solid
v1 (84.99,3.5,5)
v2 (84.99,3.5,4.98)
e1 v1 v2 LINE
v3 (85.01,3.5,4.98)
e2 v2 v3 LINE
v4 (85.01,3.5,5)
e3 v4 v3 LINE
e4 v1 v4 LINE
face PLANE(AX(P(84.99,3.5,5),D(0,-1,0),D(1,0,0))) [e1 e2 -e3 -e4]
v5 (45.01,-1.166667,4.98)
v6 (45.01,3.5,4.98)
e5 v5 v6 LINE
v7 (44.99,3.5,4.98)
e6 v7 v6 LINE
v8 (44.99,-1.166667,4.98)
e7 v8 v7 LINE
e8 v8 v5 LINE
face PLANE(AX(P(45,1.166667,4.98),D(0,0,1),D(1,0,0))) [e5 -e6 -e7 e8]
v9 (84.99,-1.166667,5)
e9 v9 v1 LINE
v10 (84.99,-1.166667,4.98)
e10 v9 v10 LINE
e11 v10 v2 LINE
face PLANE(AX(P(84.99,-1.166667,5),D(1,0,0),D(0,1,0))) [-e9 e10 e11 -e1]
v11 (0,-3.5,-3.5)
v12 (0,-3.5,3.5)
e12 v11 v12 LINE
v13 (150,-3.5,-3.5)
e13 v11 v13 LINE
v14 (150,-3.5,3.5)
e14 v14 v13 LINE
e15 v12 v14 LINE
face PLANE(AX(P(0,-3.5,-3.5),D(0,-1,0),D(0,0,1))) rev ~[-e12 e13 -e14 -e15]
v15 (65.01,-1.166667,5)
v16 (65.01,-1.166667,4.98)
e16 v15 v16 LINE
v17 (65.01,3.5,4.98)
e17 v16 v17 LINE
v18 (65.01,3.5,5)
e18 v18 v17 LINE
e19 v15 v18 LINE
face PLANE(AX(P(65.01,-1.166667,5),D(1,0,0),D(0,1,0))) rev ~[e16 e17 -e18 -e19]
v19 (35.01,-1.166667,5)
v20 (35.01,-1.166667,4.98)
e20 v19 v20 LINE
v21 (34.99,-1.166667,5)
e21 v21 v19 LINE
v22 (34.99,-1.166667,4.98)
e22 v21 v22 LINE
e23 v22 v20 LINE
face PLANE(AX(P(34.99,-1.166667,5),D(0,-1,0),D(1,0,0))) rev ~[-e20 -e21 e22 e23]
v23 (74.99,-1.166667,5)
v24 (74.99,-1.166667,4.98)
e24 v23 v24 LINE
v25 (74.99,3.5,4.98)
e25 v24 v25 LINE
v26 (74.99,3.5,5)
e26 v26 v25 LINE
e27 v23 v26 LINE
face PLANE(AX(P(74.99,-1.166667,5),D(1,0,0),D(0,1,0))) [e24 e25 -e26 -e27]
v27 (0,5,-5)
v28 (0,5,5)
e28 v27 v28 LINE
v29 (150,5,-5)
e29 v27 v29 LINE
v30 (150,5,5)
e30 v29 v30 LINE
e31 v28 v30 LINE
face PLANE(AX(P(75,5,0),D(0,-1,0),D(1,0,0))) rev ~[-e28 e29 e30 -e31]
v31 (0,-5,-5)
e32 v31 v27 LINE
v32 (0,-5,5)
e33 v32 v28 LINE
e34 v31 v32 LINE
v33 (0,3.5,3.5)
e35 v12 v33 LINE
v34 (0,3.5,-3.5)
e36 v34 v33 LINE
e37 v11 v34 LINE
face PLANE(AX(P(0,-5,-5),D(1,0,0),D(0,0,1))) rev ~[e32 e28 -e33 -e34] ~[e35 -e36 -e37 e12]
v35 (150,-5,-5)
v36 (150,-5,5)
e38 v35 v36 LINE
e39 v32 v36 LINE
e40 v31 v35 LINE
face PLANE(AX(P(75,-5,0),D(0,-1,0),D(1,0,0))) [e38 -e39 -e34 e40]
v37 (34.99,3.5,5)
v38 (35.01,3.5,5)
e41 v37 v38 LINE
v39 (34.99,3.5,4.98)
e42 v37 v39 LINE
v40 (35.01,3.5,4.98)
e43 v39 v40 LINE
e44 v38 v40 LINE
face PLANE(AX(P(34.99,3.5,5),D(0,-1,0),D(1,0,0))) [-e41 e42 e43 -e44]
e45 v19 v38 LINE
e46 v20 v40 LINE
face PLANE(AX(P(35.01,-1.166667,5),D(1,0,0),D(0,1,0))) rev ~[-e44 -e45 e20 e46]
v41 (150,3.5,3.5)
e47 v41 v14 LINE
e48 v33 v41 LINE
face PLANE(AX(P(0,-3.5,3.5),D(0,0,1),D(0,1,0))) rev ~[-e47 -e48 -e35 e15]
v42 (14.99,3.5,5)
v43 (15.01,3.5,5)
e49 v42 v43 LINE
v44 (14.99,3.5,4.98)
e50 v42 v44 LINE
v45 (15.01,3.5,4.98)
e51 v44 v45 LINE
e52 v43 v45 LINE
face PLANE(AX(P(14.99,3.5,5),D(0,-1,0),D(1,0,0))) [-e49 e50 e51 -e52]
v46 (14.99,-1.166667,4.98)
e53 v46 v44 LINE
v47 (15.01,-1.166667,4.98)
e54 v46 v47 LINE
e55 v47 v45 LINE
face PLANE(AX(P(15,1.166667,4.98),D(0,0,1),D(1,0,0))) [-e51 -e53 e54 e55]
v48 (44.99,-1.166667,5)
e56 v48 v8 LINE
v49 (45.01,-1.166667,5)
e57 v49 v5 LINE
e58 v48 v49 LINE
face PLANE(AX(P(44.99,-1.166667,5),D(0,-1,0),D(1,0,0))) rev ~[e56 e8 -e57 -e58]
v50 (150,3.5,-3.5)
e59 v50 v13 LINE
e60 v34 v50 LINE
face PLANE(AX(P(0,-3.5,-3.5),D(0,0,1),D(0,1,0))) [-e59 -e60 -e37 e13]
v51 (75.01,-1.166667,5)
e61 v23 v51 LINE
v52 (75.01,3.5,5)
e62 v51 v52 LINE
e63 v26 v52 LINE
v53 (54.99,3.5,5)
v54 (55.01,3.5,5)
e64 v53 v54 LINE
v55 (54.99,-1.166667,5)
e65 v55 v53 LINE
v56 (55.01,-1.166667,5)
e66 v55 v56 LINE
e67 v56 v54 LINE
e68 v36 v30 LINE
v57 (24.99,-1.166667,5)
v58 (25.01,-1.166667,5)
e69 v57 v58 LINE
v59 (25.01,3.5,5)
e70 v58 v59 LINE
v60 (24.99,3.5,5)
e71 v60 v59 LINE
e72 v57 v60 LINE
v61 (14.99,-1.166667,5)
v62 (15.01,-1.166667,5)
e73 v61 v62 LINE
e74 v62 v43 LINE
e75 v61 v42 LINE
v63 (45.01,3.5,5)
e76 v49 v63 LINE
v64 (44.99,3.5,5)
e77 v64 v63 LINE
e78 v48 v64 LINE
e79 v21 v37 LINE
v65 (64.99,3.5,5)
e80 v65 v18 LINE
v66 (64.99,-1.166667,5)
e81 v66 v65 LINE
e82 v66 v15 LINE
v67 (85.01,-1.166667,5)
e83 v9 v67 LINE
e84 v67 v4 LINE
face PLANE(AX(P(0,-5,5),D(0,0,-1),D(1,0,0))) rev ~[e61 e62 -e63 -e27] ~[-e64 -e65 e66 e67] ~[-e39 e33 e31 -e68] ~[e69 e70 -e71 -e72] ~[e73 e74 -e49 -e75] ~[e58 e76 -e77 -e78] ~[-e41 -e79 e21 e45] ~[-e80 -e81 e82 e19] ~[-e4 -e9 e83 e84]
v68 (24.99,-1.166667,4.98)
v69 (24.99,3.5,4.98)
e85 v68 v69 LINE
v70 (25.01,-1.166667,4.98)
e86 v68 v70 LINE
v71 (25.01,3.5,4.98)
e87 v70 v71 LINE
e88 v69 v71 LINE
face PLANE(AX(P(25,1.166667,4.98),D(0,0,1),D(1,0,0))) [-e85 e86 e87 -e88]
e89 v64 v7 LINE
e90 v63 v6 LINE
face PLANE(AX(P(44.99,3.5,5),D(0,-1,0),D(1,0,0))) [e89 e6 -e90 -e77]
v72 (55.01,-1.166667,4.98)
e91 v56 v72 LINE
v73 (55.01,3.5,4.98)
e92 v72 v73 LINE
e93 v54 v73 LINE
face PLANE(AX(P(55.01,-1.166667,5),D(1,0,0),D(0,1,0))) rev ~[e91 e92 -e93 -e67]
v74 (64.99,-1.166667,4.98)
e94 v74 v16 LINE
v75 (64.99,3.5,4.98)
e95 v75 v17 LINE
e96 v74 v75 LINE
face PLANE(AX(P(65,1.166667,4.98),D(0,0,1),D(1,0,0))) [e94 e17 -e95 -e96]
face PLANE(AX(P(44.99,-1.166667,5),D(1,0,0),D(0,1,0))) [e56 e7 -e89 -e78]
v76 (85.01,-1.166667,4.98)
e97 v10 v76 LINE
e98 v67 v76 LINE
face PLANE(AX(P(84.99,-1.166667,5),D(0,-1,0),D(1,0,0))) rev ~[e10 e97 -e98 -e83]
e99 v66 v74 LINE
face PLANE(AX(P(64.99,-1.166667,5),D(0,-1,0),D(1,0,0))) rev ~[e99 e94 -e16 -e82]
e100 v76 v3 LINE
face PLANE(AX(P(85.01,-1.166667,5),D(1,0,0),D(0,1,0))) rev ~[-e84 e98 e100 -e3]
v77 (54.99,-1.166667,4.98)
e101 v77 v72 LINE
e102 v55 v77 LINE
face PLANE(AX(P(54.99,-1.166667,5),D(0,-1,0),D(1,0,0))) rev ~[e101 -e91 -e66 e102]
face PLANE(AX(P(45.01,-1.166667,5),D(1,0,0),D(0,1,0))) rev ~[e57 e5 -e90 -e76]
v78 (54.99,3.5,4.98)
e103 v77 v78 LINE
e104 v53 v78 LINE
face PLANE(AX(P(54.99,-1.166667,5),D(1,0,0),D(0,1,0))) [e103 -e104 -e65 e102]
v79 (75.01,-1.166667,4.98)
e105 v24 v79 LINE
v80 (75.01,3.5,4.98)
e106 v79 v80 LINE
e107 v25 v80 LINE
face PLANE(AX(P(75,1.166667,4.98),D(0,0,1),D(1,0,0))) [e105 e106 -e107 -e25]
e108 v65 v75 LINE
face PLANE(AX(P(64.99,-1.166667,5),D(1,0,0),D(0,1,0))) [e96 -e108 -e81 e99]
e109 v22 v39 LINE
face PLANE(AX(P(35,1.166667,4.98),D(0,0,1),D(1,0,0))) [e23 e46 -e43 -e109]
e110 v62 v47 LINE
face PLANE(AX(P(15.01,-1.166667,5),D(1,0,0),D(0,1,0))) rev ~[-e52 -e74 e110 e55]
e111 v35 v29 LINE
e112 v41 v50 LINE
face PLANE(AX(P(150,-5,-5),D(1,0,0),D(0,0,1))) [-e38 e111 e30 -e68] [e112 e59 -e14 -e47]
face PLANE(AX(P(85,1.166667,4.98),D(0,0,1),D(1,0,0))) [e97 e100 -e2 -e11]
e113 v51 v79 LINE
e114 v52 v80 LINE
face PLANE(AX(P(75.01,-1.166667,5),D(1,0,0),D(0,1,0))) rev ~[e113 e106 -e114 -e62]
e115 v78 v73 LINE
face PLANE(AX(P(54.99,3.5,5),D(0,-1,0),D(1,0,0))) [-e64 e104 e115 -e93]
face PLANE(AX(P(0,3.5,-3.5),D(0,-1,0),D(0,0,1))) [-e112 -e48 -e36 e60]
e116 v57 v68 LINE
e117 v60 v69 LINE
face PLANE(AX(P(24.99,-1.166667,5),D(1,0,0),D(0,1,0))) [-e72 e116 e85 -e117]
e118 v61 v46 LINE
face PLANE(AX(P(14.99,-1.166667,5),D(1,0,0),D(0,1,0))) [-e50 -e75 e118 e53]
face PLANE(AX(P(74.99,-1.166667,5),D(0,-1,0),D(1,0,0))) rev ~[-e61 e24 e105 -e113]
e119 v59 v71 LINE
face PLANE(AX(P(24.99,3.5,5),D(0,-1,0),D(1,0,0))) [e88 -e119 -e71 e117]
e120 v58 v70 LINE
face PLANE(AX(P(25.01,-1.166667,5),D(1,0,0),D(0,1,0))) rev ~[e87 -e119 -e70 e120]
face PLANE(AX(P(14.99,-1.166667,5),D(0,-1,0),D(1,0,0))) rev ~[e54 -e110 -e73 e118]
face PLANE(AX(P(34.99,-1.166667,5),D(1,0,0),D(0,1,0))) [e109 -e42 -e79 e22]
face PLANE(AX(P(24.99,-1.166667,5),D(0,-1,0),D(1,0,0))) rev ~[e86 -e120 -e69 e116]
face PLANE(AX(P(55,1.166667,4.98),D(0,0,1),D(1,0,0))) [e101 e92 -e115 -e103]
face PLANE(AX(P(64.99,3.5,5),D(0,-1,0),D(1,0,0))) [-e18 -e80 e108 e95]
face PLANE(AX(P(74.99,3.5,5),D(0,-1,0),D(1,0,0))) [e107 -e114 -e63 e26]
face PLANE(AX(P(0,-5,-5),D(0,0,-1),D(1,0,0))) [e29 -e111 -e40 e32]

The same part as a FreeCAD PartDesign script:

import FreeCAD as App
import Part
import Sketcher

V = App.Vector
Q = App.Units.Quantity


def add_polygon(sketch, points):
    """Adds a closed chain of lines whose ends are joined by coincident constraints."""
    first, n = sketch.GeometryCount, len(points)
    for a, b in zip(points, points[1:] + points[:1]):
        sketch.addGeometry(Part.LineSegment(App.Vector(*a, 0), App.Vector(*b, 0)), False)
    for i in range(n):
        sketch.addConstraint(Sketcher.Constraint("Coincident", first + i, 2, first + (i + 1) % n, 1))

doc = App.newDocument("Part")
body = doc.addObject("PartDesign::Body", "Body")

# Sketch on XZ plane
sketch1 = doc.addObject("Sketcher::SketchObject", "Sketch")
body.addObject(sketch1)
sketch1.AttachmentSupport = (doc.XZ_Plane, [""])
sketch1.MapMode = "FlatFace"
sketch1.AttachmentOffset = App.Placement(V(0, 0, 5), App.Rotation())
add_polygon(sketch1, [(0, 5), (0, -5), (150, -5), (150, 5)])  # lines 0-3
sketch1.addConstraint([
    Sketcher.Constraint("Vertical", 0),
    Sketcher.Constraint("Horizontal", 1),
    Sketcher.Constraint("Vertical", 2),
    Sketcher.Constraint("Horizontal", 3),
    Sketcher.Constraint("Symmetric", 0, 2, 3, 2, -1, 1),
    Sketcher.Constraint("DistanceX", 1, 1, 1, 2, Q("150 mm")),
    Sketcher.Constraint("DistanceY", 0, 2, 0, 1, Q("10 mm")),
])
pad1 = doc.addObject("PartDesign::Pad", "Pad")
body.addObject(pad1)
pad1.Profile = sketch1
pad1.Length = 10
pad1.Reversed = True

# Sketch on YZ plane
sketch2 = doc.addObject("Sketcher::SketchObject", "Sketch001")
body.addObject(sketch2)
sketch2.AttachmentSupport = (doc.YZ_Plane, [""])
sketch2.MapMode = "FlatFace"
add_polygon(sketch2, [(4, -4), (-4, -4), (-4, 4), (4, 4)])  # lines 0-3
sketch2.addConstraint([
    Sketcher.Constraint("Horizontal", 0),
    Sketcher.Constraint("Vertical", 1),
    Sketcher.Constraint("Horizontal", 2),
    Sketcher.Constraint("Vertical", 3),
    Sketcher.Constraint("Symmetric", 0, 2, 2, 2, -1, 1),
    Sketcher.Constraint("Equal", 2, 1),
    Sketcher.Constraint("DistanceX", 0, 2, 0, 1, Q("7 mm")),
])
pocket1 = doc.addObject("PartDesign::Pocket", "Pocket")
body.addObject(pocket1)
pocket1.Profile = sketch2
pocket1.Type = "ThroughAll"
pocket1.Reversed = True

# Sketch on XY plane
sketch3 = doc.addObject("Sketcher::SketchObject", "Sketch002")
body.addObject(sketch3)
sketch3.AttachmentSupport = (doc.XY_Plane, [""])
sketch3.MapMode = "FlatFace"
sketch3.AttachmentOffset = App.Placement(V(0, 0, 5), App.Rotation())
add_polygon(sketch3, [(24.99, 3.5), (24.99, -1.167), (25.01, -1.167), (25.01, 3.5)])  # lines 0-3
sketch3.addConstraint([
    Sketcher.Constraint("Vertical", 0),
    Sketcher.Constraint("Horizontal", 1),
    Sketcher.Constraint("Vertical", 2),
    Sketcher.Constraint("Horizontal", 3),
    Sketcher.Constraint("DistanceX", 1, 1, 1, 2, Q("0.02 mm")),
    Sketcher.Constraint("DistanceY", -1, 1, 2, 2, Q("3.5 mm")),
    Sketcher.Constraint("DistanceX", -1, 1, 0, 2, Q("24.99 mm")),
    Sketcher.Constraint("DistanceY", 0, 2, 0, 1, Q("4.666667 mm")),
])
pocket2 = doc.addObject("PartDesign::Pocket", "Pocket001")
body.addObject(pocket2)
pocket2.Profile = sketch3
pocket2.Length = 0.02

# Sketch on XY plane
sketch4 = doc.addObject("Sketcher::SketchObject", "Sketch003")
body.addObject(sketch4)
sketch4.AttachmentSupport = (doc.XY_Plane, [""])
sketch4.MapMode = "FlatFace"
sketch4.AttachmentOffset = App.Placement(V(0, 0, 5), App.Rotation())
add_polygon(sketch4, [(34.99, 3.5), (34.99, -1.167), (35.01, -1.167), (35.01, 3.5)])  # lines 0-3
sketch4.addConstraint([
    Sketcher.Constraint("Vertical", 0),
    Sketcher.Constraint("Horizontal", 1),
    Sketcher.Constraint("Vertical", 2),
    Sketcher.Constraint("Horizontal", 3),
    Sketcher.Constraint("DistanceX", 1, 1, 1, 2, Q("0.02 mm")),
    Sketcher.Constraint("DistanceY", -1, 1, 2, 2, Q("3.5 mm")),
    Sketcher.Constraint("DistanceX", -1, 1, 0, 2, Q("34.99 mm")),
    Sketcher.Constraint("DistanceY", 0, 2, 0, 1, Q("4.666667 mm")),
])
pocket3 = doc.addObject("PartDesign::Pocket", "Pocket002")
body.addObject(pocket3)
pocket3.Profile = sketch4
pocket3.Length = 0.02

# Sketch on XY plane
sketch5 = doc.addObject("Sketcher::SketchObject", "Sketch004")
body.addObject(sketch5)
sketch5.AttachmentSupport = (doc.XY_Plane, [""])
sketch5.MapMode = "FlatFace"
sketch5.AttachmentOffset = App.Placement(V(0, 0, 5), App.Rotation())
add_polygon(sketch5, [(44.99, 3.5), (44.99, -1.167), (45.01, -1.167), (45.01, 3.5)])  # lines 0-3
sketch5.addConstraint([
    Sketcher.Constraint("Vertical", 0),
    Sketcher.Constraint("Horizontal", 1),
    Sketcher.Constraint("Vertical", 2),
    Sketcher.Constraint("Horizontal", 3),
    Sketcher.Constraint("DistanceX", 1, 1, 1, 2, Q("0.02 mm")),
    Sketcher.Constraint("DistanceY", -1, 1, 2, 2, Q("3.5 mm")),
    Sketcher.Constraint("DistanceX", -1, 1, 0, 2, Q("44.99 mm")),
    Sketcher.Constraint("DistanceY", 0, 2, 0, 1, Q("4.666667 mm")),
])
pocket4 = doc.addObject("PartDesign::Pocket", "Pocket003")
body.addObject(pocket4)
pocket4.Profile = sketch5
pocket4.Length = 0.02

# Sketch on XY plane
sketch6 = doc.addObject("Sketcher::SketchObject", "Sketch005")
body.addObject(sketch6)
sketch6.AttachmentSupport = (doc.XY_Plane, [""])
sketch6.MapMode = "FlatFace"
sketch6.AttachmentOffset = App.Placement(V(0, 0, 5), App.Rotation())
add_polygon(sketch6, [(54.99, 3.5), (54.99, -1.167), (55.01, -1.167), (55.01, 3.5)])  # lines 0-3
sketch6.addConstraint([
    Sketcher.Constraint("Vertical", 0),
    Sketcher.Constraint("Horizontal", 1),
    Sketcher.Constraint("Vertical", 2),
    Sketcher.Constraint("Horizontal", 3),
    Sketcher.Constraint("DistanceX", 1, 1, 1, 2, Q("0.02 mm")),
    Sketcher.Constraint("DistanceY", -1, 1, 2, 2, Q("3.5 mm")),
    Sketcher.Constraint("DistanceX", -1, 1, 0, 2, Q("54.99 mm")),
    Sketcher.Constraint("DistanceY", 0, 2, 0, 1, Q("4.666667 mm")),
])
pocket5 = doc.addObject("PartDesign::Pocket", "Pocket004")
body.addObject(pocket5)
pocket5.Profile = sketch6
pocket5.Length = 0.02

# Sketch on XY plane
sketch7 = doc.addObject("Sketcher::SketchObject", "Sketch006")
body.addObject(sketch7)
sketch7.AttachmentSupport = (doc.XY_Plane, [""])
sketch7.MapMode = "FlatFace"
sketch7.AttachmentOffset = App.Placement(V(0, 0, 5), App.Rotation())
add_polygon(sketch7, [(64.99, 3.5), (64.99, -1.167), (65.01, -1.167), (65.01, 3.5)])  # lines 0-3
sketch7.addConstraint([
    Sketcher.Constraint("Vertical", 0),
    Sketcher.Constraint("Horizontal", 1),
    Sketcher.Constraint("Vertical", 2),
    Sketcher.Constraint("Horizontal", 3),
    Sketcher.Constraint("DistanceX", 1, 1, 1, 2, Q("0.02 mm")),
    Sketcher.Constraint("DistanceY", -1, 1, 2, 2, Q("3.5 mm")),
    Sketcher.Constraint("DistanceX", -1, 1, 0, 2, Q("64.99 mm")),
    Sketcher.Constraint("DistanceY", 0, 2, 0, 1, Q("4.666667 mm")),
])
pocket6 = doc.addObject("PartDesign::Pocket", "Pocket005")
body.addObject(pocket6)
pocket6.Profile = sketch7
pocket6.Length = 0.02

# Sketch on XY plane
sketch8 = doc.addObject("Sketcher::SketchObject", "Sketch007")
body.addObject(sketch8)
sketch8.AttachmentSupport = (doc.XY_Plane, [""])
sketch8.MapMode = "FlatFace"
sketch8.AttachmentOffset = App.Placement(V(0, 0, 5), App.Rotation())
add_polygon(sketch8, [(74.99, 3.5), (74.99, -1.167), (75.01, -1.167), (75.01, 3.5)])  # lines 0-3
sketch8.addConstraint([
    Sketcher.Constraint("Vertical", 0),
    Sketcher.Constraint("Horizontal", 1),
    Sketcher.Constraint("Vertical", 2),
    Sketcher.Constraint("Horizontal", 3),
    Sketcher.Constraint("DistanceX", 1, 1, 1, 2, Q("0.02 mm")),
    Sketcher.Constraint("DistanceY", -1, 1, 2, 2, Q("3.5 mm")),
    Sketcher.Constraint("DistanceX", -1, 1, 0, 2, Q("74.99 mm")),
    Sketcher.Constraint("DistanceY", 0, 2, 0, 1, Q("4.666667 mm")),
])
pocket7 = doc.addObject("PartDesign::Pocket", "Pocket006")
body.addObject(pocket7)
pocket7.Profile = sketch8
pocket7.Length = 0.02

# Sketch on XY plane
sketch9 = doc.addObject("Sketcher::SketchObject", "Sketch008")
body.addObject(sketch9)
sketch9.AttachmentSupport = (doc.XY_Plane, [""])
sketch9.MapMode = "FlatFace"
sketch9.AttachmentOffset = App.Placement(V(0, 0, 5), App.Rotation())
add_polygon(sketch9, [(84.99, 3.5), (84.99, -1.167), (85.01, -1.167), (85.01, 3.5)])  # lines 0-3
sketch9.addConstraint([
    Sketcher.Constraint("Vertical", 0),
    Sketcher.Constraint("Horizontal", 1),
    Sketcher.Constraint("Vertical", 2),
    Sketcher.Constraint("Horizontal", 3),
    Sketcher.Constraint("DistanceX", 1, 1, 1, 2, Q("0.02 mm")),
    Sketcher.Constraint("DistanceY", -1, 1, 2, 2, Q("3.5 mm")),
    Sketcher.Constraint("DistanceX", -1, 1, 0, 2, Q("84.99 mm")),
    Sketcher.Constraint("DistanceY", 0, 2, 0, 1, Q("4.666667 mm")),
])
pocket8 = doc.addObject("PartDesign::Pocket", "Pocket007")
body.addObject(pocket8)
pocket8.Profile = sketch9
pocket8.Length = 0.02

# Sketch on XY plane
sketch10 = doc.addObject("Sketcher::SketchObject", "Sketch009")
body.addObject(sketch10)
sketch10.AttachmentSupport = (doc.XY_Plane, [""])
sketch10.MapMode = "FlatFace"
sketch10.AttachmentOffset = App.Placement(V(0, 0, 5), App.Rotation())
add_polygon(sketch10, [(14.99, 3.5), (14.99, -1.167), (15.01, -1.167), (15.01, 3.5)])  # lines 0-3
sketch10.addConstraint([
    Sketcher.Constraint("Vertical", 0),
    Sketcher.Constraint("Horizontal", 1),
    Sketcher.Constraint("Vertical", 2),
    Sketcher.Constraint("Horizontal", 3),
    Sketcher.Constraint("DistanceX", 1, 1, 1, 2, Q("0.02 mm")),
    Sketcher.Constraint("DistanceY", -1, 1, 2, 2, Q("3.5 mm")),
    Sketcher.Constraint("DistanceX", -1, 1, 0, 2, Q("14.99 mm")),
    Sketcher.Constraint("DistanceY", 0, 2, 0, 1, Q("4.666667 mm")),
])
pocket9 = doc.addObject("PartDesign::Pocket", "Pocket008")
body.addObject(pocket9)
pocket9.Profile = sketch10
pocket9.Length = 0.02

doc.recompute()
